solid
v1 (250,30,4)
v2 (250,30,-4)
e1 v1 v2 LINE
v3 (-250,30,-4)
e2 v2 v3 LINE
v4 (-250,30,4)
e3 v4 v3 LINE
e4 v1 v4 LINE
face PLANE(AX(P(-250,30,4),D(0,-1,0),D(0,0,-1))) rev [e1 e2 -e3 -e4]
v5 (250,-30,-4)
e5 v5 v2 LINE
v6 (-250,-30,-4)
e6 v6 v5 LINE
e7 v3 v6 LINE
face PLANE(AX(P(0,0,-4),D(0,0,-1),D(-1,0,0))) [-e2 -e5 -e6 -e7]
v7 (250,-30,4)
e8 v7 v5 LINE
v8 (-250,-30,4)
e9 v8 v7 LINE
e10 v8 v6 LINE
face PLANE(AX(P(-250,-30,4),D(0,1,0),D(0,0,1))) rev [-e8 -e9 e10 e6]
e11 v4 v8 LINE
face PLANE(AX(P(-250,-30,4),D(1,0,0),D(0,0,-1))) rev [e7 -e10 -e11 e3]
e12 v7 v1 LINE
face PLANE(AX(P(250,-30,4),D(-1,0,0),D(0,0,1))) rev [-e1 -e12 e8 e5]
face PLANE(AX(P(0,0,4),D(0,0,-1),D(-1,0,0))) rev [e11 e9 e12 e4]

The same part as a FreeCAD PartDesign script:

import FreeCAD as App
import Part
import Sketcher

V = App.Vector


def add_polygon(sketch, points):
    """Adds a closed chain of lines whose ends are joined by coincident constraints."""
    first, n = sketch.GeometryCount, len(points)
    for a, b in zip(points, points[1:] + points[:1]):
        sketch.addGeometry(Part.LineSegment(App.Vector(*a, 0), App.Vector(*b, 0)), False)
    for i in range(n):
        sketch.addConstraint(Sketcher.Constraint("Coincident", first + i, 2, first + (i + 1) % n, 1))

doc = App.newDocument("Part")
body = doc.addObject("PartDesign::Body", "Body")

# Sketch on XY plane
sketch1 = body.newObject("Sketcher::SketchObject", "Sketch")
sketch1.AttachmentSupport = (doc.getObject("XY_Plane"), [""])
sketch1.MapMode = "FlatFace"
add_polygon(sketch1, [(-250, 30), (-250, -30), (250, -30), (250, 30)])  # lines 0-3
sketch1.addConstraint(Sketcher.Constraint("Vertical", 0))
sketch1.addConstraint(Sketcher.Constraint("Horizontal", 1))
sketch1.addConstraint(Sketcher.Constraint("Vertical", 2))
sketch1.addConstraint(Sketcher.Constraint("Horizontal", 3))
sketch1.addConstraint(Sketcher.Constraint("Symmetric", 0, 2, 2, 2, -1, 1))
sketch1.addConstraint(Sketcher.Constraint("DistanceX", 1, 1, 1, 2, 500.0))
sketch1.addConstraint(Sketcher.Constraint("DistanceY", 0, 2, 0, 1, 60.0))
pad1 = body.newObject("PartDesign::Pad", "Pad")
pad1.Profile = sketch1
pad1.Length = 8
pad1.Midplane = True

doc.recompute()
